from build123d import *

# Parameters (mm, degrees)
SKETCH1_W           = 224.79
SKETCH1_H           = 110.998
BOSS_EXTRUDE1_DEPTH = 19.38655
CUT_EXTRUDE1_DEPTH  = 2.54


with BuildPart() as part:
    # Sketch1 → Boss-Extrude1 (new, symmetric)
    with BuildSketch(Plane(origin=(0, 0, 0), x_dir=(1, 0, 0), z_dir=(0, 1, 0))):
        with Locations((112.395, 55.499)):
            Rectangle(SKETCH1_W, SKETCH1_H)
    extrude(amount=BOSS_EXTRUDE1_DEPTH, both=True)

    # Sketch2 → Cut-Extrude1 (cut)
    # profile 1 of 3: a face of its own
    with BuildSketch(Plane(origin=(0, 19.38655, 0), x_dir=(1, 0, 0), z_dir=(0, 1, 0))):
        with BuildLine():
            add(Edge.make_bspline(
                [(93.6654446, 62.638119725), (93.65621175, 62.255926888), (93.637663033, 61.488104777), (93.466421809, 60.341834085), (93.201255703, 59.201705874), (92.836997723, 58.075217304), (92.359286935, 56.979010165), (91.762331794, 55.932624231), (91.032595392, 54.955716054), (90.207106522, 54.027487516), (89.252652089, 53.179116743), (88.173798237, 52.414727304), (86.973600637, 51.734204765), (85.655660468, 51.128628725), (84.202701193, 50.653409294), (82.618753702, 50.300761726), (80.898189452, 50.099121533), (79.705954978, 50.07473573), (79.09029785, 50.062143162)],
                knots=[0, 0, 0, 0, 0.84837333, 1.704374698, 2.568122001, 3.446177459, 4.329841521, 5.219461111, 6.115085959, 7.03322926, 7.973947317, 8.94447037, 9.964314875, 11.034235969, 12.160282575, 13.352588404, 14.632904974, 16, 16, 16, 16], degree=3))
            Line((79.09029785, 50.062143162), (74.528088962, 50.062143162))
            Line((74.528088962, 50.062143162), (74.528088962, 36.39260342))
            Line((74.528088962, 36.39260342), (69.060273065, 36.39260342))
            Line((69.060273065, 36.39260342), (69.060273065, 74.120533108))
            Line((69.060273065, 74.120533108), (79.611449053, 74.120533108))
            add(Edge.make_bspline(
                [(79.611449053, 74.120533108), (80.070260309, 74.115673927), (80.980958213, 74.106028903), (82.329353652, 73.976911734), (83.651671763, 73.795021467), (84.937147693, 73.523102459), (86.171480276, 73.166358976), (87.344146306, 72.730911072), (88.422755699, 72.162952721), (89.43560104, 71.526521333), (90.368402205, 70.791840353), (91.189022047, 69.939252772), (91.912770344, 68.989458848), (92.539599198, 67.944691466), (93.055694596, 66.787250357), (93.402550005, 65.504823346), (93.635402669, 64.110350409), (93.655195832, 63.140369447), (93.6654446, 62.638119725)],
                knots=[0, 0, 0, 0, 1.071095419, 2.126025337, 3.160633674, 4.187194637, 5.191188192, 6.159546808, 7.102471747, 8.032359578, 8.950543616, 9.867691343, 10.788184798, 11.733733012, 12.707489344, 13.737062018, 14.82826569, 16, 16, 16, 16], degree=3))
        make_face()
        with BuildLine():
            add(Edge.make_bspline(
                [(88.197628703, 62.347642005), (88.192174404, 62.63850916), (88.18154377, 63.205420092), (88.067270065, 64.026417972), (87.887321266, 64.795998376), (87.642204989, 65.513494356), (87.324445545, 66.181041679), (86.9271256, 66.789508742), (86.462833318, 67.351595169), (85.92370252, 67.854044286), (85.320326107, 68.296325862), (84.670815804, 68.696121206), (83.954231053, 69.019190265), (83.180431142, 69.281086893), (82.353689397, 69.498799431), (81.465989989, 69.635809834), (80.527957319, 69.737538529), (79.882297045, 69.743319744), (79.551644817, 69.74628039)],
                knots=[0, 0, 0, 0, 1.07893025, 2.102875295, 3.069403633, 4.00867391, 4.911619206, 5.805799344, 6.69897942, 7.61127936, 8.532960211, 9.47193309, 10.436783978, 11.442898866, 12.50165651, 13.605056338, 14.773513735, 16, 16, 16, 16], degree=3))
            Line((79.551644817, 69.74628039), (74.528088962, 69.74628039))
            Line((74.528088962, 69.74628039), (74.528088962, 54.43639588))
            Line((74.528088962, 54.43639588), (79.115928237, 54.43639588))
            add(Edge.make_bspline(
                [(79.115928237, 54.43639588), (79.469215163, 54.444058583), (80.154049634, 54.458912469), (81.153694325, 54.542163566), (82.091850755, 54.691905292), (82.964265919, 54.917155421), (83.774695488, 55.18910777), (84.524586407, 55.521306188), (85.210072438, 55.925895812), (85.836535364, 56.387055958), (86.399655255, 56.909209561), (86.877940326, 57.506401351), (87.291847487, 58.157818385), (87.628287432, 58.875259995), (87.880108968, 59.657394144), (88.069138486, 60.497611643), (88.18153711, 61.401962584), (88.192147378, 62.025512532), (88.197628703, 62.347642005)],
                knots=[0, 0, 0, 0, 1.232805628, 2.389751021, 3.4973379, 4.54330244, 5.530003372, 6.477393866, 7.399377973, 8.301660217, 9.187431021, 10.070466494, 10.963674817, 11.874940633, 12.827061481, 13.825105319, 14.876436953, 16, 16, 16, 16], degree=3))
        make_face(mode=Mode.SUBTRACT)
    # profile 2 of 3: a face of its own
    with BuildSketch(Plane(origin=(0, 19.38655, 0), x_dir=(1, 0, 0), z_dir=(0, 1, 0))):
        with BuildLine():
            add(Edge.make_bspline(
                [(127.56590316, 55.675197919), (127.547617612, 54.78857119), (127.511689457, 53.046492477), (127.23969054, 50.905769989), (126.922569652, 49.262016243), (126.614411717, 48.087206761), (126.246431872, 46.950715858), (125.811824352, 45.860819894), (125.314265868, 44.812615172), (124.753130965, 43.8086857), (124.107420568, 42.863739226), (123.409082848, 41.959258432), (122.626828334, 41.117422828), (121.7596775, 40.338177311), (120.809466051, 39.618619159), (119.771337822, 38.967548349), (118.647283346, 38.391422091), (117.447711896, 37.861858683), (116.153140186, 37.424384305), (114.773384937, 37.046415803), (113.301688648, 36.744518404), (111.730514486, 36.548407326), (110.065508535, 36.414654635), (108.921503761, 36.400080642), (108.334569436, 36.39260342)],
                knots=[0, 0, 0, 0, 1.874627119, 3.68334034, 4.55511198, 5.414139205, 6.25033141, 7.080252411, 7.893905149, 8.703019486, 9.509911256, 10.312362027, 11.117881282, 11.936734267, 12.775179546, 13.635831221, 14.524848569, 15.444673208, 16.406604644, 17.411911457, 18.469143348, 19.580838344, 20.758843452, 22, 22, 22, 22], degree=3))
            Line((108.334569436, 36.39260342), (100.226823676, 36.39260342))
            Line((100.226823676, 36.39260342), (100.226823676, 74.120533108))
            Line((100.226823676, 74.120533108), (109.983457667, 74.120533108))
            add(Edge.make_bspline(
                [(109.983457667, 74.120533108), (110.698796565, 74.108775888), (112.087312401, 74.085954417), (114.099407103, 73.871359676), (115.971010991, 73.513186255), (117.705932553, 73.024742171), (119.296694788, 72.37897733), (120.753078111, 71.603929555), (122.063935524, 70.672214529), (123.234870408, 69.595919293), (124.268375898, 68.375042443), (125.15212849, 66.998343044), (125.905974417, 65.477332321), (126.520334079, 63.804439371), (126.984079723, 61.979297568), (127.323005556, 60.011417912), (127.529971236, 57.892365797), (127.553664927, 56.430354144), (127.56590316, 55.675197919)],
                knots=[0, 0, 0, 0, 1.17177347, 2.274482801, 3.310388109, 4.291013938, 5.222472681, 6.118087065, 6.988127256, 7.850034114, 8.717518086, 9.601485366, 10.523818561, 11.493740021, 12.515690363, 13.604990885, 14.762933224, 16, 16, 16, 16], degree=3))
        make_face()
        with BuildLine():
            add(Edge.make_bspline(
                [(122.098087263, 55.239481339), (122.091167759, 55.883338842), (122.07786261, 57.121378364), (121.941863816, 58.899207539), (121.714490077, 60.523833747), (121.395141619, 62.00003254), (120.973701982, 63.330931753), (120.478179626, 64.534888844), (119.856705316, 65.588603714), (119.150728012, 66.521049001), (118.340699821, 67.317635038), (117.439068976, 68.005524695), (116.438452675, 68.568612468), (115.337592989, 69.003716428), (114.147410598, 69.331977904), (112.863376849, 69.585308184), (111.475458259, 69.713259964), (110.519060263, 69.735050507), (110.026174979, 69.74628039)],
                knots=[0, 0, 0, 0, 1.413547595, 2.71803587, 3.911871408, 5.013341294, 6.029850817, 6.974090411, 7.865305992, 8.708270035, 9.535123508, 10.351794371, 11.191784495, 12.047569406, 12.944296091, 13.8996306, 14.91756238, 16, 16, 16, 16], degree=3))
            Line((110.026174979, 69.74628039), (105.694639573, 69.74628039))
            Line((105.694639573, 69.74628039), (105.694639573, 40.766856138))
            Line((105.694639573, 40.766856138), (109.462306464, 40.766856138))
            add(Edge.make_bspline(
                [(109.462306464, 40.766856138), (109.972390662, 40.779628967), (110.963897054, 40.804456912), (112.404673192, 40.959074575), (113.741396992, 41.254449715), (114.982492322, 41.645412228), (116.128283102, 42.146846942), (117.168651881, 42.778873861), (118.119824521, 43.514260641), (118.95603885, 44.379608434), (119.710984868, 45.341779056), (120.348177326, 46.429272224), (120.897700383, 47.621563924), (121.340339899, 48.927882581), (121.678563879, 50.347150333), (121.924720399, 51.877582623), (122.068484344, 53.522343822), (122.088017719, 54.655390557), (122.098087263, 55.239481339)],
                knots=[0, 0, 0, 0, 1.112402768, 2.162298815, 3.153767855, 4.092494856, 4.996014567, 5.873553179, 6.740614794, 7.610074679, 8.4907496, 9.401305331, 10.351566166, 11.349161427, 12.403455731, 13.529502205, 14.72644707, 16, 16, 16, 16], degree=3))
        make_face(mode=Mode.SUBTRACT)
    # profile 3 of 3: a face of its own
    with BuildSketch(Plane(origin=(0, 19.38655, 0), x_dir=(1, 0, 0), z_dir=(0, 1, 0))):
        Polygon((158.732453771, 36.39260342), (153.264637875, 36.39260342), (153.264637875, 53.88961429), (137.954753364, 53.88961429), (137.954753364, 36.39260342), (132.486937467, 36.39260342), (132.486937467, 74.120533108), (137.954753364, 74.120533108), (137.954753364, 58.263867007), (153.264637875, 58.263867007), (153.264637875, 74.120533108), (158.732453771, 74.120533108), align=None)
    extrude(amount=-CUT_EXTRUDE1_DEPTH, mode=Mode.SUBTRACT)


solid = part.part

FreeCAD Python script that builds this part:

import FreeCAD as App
import Part
import Sketcher

V = App.Vector
Q = App.Units.Quantity


def add_polygon(sketch, points):
    """Adds a closed chain of lines whose ends are joined by coincident constraints."""
    first, n = sketch.GeometryCount, len(points)
    for a, b in zip(points, points[1:] + points[:1]):
        sketch.addGeometry(Part.LineSegment(App.Vector(*a, 0), App.Vector(*b, 0)), False)
    for i in range(n):
        sketch.addConstraint(Sketcher.Constraint("Coincident", first + i, 2, first + (i + 1) % n, 1))

doc = App.newDocument("Part")
params = doc.addObject("Spreadsheet::Sheet", "Params")
for row, (alias, value) in enumerate([
    ("sketch1_width", "8.85 in"),
    ("sketch1_height", "4.37 in"),
    ("pad1_length", "1.5265 in"),
    ("pocket1_length", "0.1 in"),
], start=1):
    params.set(f"A{row}", alias)
    params.set(f"B{row}", "=" + value)
    params.setAlias(f"B{row}", alias)

body = doc.addObject("PartDesign::Body", "Body")

sketch1 = doc.addObject("Sketcher::SketchObject", "Sketch")
body.addObject(sketch1)
sketch1.AttachmentSupport = (doc.XZ_Plane, [""])
sketch1.MapMode = "FlatFace"
add_polygon(sketch1, [(0, -111), (0, 0), (225, 0), (225, -111)])
sketch1.addConstraint([
    Sketcher.Constraint("Vertical", 0),
    Sketcher.Constraint("Horizontal", 1),
    Sketcher.Constraint("Vertical", 2),
    Sketcher.Constraint("Horizontal", 3),
    Sketcher.Constraint("Coincident", 0, 2, -1, 1),
    Sketcher.Constraint("DistanceX", 1, 1, 1, 2, Q("8.85 in")),
    Sketcher.Constraint("DistanceY", 0, 1, 0, 2, Q("4.37 in")),
])
sketch1.setExpression("Constraints[9]", "Params.sketch1_width")
sketch1.setExpression("Constraints[10]", "Params.sketch1_height")
pad1 = doc.addObject("PartDesign::Pad", "Pad")
body.addObject(pad1)
pad1.Profile = sketch1
pad1.setExpression("Length", "Params.pad1_length")
pad1.Midplane = True

sketch2 = doc.addObject("Sketcher::SketchObject", "Sketch001")
body.addObject(sketch2)
sketch2.AttachmentSupport = (doc.XZ_Plane, [""])
sketch2.MapMode = "FlatFace"
sketch2.AttachmentOffset = App.Placement(V(0, 0, -19.38655), App.Rotation())
sketch2.addGeometry(Part.BSplineCurve([V(93.665445, -62.63812, 0), V(93.656212, -62.255927, 0), V(93.637663, -61.488105, 0), V(93.466422, -60.341834, 0), V(93.201256, -59.201706, 0), V(92.836998, -58.075217, 0), V(92.359287, -56.97901, 0), V(91.762332, -55.932624, 0), V(91.032595, -54.955716, 0), V(90.207107, -54.027488, 0), V(89.252652, -53.179117, 0), V(88.173798, -52.414727, 0), V(86.973601, -51.734205, 0), V(85.65566, -51.128629, 0), V(84.202701, -50.653409, 0), V(82.618754, -50.300762, 0), V(80.898189, -50.099122, 0), V(79.705955, -50.074736, 0), V(79.090298, -50.062143, 0)], [4, 1, 1, 1, 1, 1, 1, 1, 1, 1, 1, 1, 1, 1, 1, 1, 4], [0, 0.84837333, 1.704374698, 2.568122001, 3.446177459, 4.329841521, 5.219461111, 6.115085959, 7.03322926, 7.973947317, 8.94447037, 9.964314875, 11.034235969, 12.160282575, 13.352588404, 14.632904974, 16], False, 3, [1, 1, 1, 1, 1, 1, 1, 1, 1, 1, 1, 1, 1, 1, 1, 1, 1, 1, 1], False), False)
sketch2.addGeometry(Part.BSplineCurve([V(79.611449, -74.120533, 0), V(80.07026, -74.115674, 0), V(80.980958, -74.106029, 0), V(82.329354, -73.976912, 0), V(83.651672, -73.795021, 0), V(84.937148, -73.523102, 0), V(86.17148, -73.166359, 0), V(87.344146, -72.730911, 0), V(88.422756, -72.162953, 0), V(89.435601, -71.526521, 0), V(90.368402, -70.79184, 0), V(91.189022, -69.939253, 0), V(91.91277, -68.989459, 0), V(92.539599, -67.944691, 0), V(93.055695, -66.78725, 0), V(93.40255, -65.504823, 0), V(93.635403, -64.11035, 0), V(93.655196, -63.140369, 0), V(93.665445, -62.63812, 0)], [4, 1, 1, 1, 1, 1, 1, 1, 1, 1, 1, 1, 1, 1, 1, 1, 4], [0, 1.071095419, 2.126025337, 3.160633674, 4.187194637, 5.191188192, 6.159546808, 7.102471747, 8.032359578, 8.950543616, 9.867691343, 10.788184798, 11.733733012, 12.707489344, 13.737062018, 14.82826569, 16], False, 3, [1, 1, 1, 1, 1, 1, 1, 1, 1, 1, 1, 1, 1, 1, 1, 1, 1, 1, 1], False), False)
sketch2.addGeometry(Part.LineSegment(V(79.611449, -74.120533, 0), V(69.060273, -74.120533, 0)), False)
sketch2.addGeometry(Part.LineSegment(V(69.060273, -74.120533, 0), V(69.060273, -36.392603, 0)), False)
sketch2.addGeometry(Part.LineSegment(V(69.060273, -36.392603, 0), V(74.528089, -36.392603, 0)), False)
sketch2.addGeometry(Part.LineSegment(V(74.528089, -36.392603, 0), V(74.528089, -50.062143, 0)), False)
sketch2.addGeometry(Part.LineSegment(V(74.528089, -50.062143, 0), V(79.090298, -50.062143, 0)), False)
sketch2.addGeometry(Part.BSplineCurve([V(79.115928, -54.436396, 0), V(79.469215, -54.444059, 0), V(80.15405, -54.458912, 0), V(81.153694, -54.542164, 0), V(82.091851, -54.691905, 0), V(82.964266, -54.917155, 0), V(83.774695, -55.189108, 0), V(84.524586, -55.521306, 0), V(85.210072, -55.925896, 0), V(85.836535, -56.387056, 0), V(86.399655, -56.90921, 0), V(86.87794, -57.506401, 0), V(87.291847, -58.157818, 0), V(87.628287, -58.87526, 0), V(87.880109, -59.657394, 0), V(88.069138, -60.497612, 0), V(88.181537, -61.401963, 0), V(88.192147, -62.025513, 0), V(88.197629, -62.347642, 0)], [4, 1, 1, 1, 1, 1, 1, 1, 1, 1, 1, 1, 1, 1, 1, 1, 4], [0, 1.232805628, 2.389751021, 3.4973379, 4.54330244, 5.530003372, 6.477393866, 7.399377973, 8.301660217, 9.187431021, 10.070466494, 10.963674817, 11.874940633, 12.827061481, 13.825105319, 14.876436953, 16], False, 3, [1, 1, 1, 1, 1, 1, 1, 1, 1, 1, 1, 1, 1, 1, 1, 1, 1, 1, 1], False), False)
sketch2.addGeometry(Part.LineSegment(V(79.115928, -54.436396, 0), V(74.528089, -54.436396, 0)), False)
sketch2.addGeometry(Part.LineSegment(V(74.528089, -54.436396, 0), V(74.528089, -69.74628, 0)), False)
sketch2.addGeometry(Part.LineSegment(V(74.528089, -69.74628, 0), V(79.551645, -69.74628, 0)), False)
sketch2.addGeometry(Part.BSplineCurve([V(88.197629, -62.347642, 0), V(88.192174, -62.638509, 0), V(88.181544, -63.20542, 0), V(88.06727, -64.026418, 0), V(87.887321, -64.795998, 0), V(87.642205, -65.513494, 0), V(87.324446, -66.181042, 0), V(86.927126, -66.789509, 0), V(86.462833, -67.351595, 0), V(85.923703, -67.854044, 0), V(85.320326, -68.296326, 0), V(84.670816, -68.696121, 0), V(83.954231, -69.01919, 0), V(83.180431, -69.281087, 0), V(82.353689, -69.498799, 0), V(81.46599, -69.63581, 0), V(80.527957, -69.737539, 0), V(79.882297, -69.74332, 0), V(79.551645, -69.74628, 0)], [4, 1, 1, 1, 1, 1, 1, 1, 1, 1, 1, 1, 1, 1, 1, 1, 4], [0, 1.07893025, 2.102875295, 3.069403633, 4.00867391, 4.911619206, 5.805799344, 6.69897942, 7.61127936, 8.532960211, 9.47193309, 10.436783978, 11.442898866, 12.50165651, 13.605056338, 14.773513735, 16], False, 3, [1, 1, 1, 1, 1, 1, 1, 1, 1, 1, 1, 1, 1, 1, 1, 1, 1, 1, 1], False), False)
sketch2.addGeometry(Part.BSplineCurve([V(127.565903, -55.675198, 0), V(127.547618, -54.788571, 0), V(127.511689, -53.046492, 0), V(127.239691, -50.90577, 0), V(126.92257, -49.262016, 0), V(126.614412, -48.087207, 0), V(126.246432, -46.950716, 0), V(125.811824, -45.86082, 0), V(125.314266, -44.812615, 0), V(124.753131, -43.808686, 0), V(124.107421, -42.863739, 0), V(123.409083, -41.959258, 0), V(122.626828, -41.117423, 0), V(121.759677, -40.338177, 0), V(120.809466, -39.618619, 0), V(119.771338, -38.967548, 0), V(118.647283, -38.391422, 0), V(117.447712, -37.861859, 0), V(116.15314, -37.424384, 0), V(114.773385, -37.046416, 0), V(113.301689, -36.744518, 0), V(111.730514, -36.548407, 0), V(110.065509, -36.414655, 0), V(108.921504, -36.400081, 0), V(108.334569, -36.392603, 0)], [4, 1, 1, 1, 1, 1, 1, 1, 1, 1, 1, 1, 1, 1, 1, 1, 1, 1, 1, 1, 1, 1, 4], [0, 1.874627119, 3.68334034, 4.55511198, 5.414139205, 6.25033141, 7.080252411, 7.893905149, 8.703019486, 9.509911256, 10.312362027, 11.117881282, 11.936734267, 12.775179546, 13.635831221, 14.524848569, 15.444673208, 16.406604644, 17.411911457, 18.469143348, 19.580838344, 20.758843452, 22], False, 3, [1, 1, 1, 1, 1, 1, 1, 1, 1, 1, 1, 1, 1, 1, 1, 1, 1, 1, 1, 1, 1, 1, 1, 1, 1], False), False)
sketch2.addGeometry(Part.BSplineCurve([V(109.983458, -74.120533, 0), V(110.698797, -74.108776, 0), V(112.087312, -74.085954, 0), V(114.099407, -73.87136, 0), V(115.971011, -73.513186, 0), V(117.705933, -73.024742, 0), V(119.296695, -72.378977, 0), V(120.753078, -71.60393, 0), V(122.063936, -70.672215, 0), V(123.23487, -69.595919, 0), V(124.268376, -68.375042, 0), V(125.152128, -66.998343, 0), V(125.905974, -65.477332, 0), V(126.520334, -63.804439, 0), V(126.98408, -61.979298, 0), V(127.323006, -60.011418, 0), V(127.529971, -57.892366, 0), V(127.553665, -56.430354, 0), V(127.565903, -55.675198, 0)], [4, 1, 1, 1, 1, 1, 1, 1, 1, 1, 1, 1, 1, 1, 1, 1, 4], [0, 1.17177347, 2.274482801, 3.310388109, 4.291013938, 5.222472681, 6.118087065, 6.988127256, 7.850034114, 8.717518086, 9.601485366, 10.523818561, 11.493740021, 12.515690363, 13.604990885, 14.762933224, 16], False, 3, [1, 1, 1, 1, 1, 1, 1, 1, 1, 1, 1, 1, 1, 1, 1, 1, 1, 1, 1], False), False)
sketch2.addGeometry(Part.LineSegment(V(109.983458, -74.120533, 0), V(100.226824, -74.120533, 0)), False)
sketch2.addGeometry(Part.LineSegment(V(100.226824, -74.120533, 0), V(100.226824, -36.392603, 0)), False)
sketch2.addGeometry(Part.LineSegment(V(100.226824, -36.392603, 0), V(108.334569, -36.392603, 0)), False)
sketch2.addGeometry(Part.BSplineCurve([V(109.462306, -40.766856, 0), V(109.972391, -40.779629, 0), V(110.963897, -40.804457, 0), V(112.404673, -40.959075, 0), V(113.741397, -41.25445, 0), V(114.982492, -41.645412, 0), V(116.128283, -42.146847, 0), V(117.168652, -42.778874, 0), V(118.119825, -43.514261, 0), V(118.956039, -44.379608, 0), V(119.710985, -45.341779, 0), V(120.348177, -46.429272, 0), V(120.8977, -47.621564, 0), V(121.34034, -48.927883, 0), V(121.678564, -50.34715, 0), V(121.92472, -51.877583, 0), V(122.068484, -53.522344, 0), V(122.088018, -54.655391, 0), V(122.098087, -55.239481, 0)], [4, 1, 1, 1, 1, 1, 1, 1, 1, 1, 1, 1, 1, 1, 1, 1, 4], [0, 1.112402768, 2.162298815, 3.153767855, 4.092494856, 4.996014567, 5.873553179, 6.740614794, 7.610074679, 8.4907496, 9.401305331, 10.351566166, 11.349161427, 12.403455731, 13.529502205, 14.72644707, 16], False, 3, [1, 1, 1, 1, 1, 1, 1, 1, 1, 1, 1, 1, 1, 1, 1, 1, 1, 1, 1], False), False)
sketch2.addGeometry(Part.LineSegment(V(109.462306, -40.766856, 0), V(105.69464, -40.766856, 0)), False)
sketch2.addGeometry(Part.LineSegment(V(105.69464, -40.766856, 0), V(105.69464, -69.74628, 0)), False)
sketch2.addGeometry(Part.LineSegment(V(105.69464, -69.74628, 0), V(110.026175, -69.74628, 0)), False)
sketch2.addGeometry(Part.BSplineCurve([V(122.098087, -55.239481, 0), V(122.091168, -55.883339, 0), V(122.077863, -57.121378, 0), V(121.941864, -58.899208, 0), V(121.71449, -60.523834, 0), V(121.395142, -62.000033, 0), V(120.973702, -63.330932, 0), V(120.47818, -64.534889, 0), V(119.856705, -65.588604, 0), V(119.150728, -66.521049, 0), V(118.3407, -67.317635, 0), V(117.439069, -68.005525, 0), V(116.438453, -68.568612, 0), V(115.337593, -69.003716, 0), V(114.147411, -69.331978, 0), V(112.863377, -69.585308, 0), V(111.475458, -69.71326, 0), V(110.51906, -69.735051, 0), V(110.026175, -69.74628, 0)], [4, 1, 1, 1, 1, 1, 1, 1, 1, 1, 1, 1, 1, 1, 1, 1, 4], [0, 1.413547595, 2.71803587, 3.911871408, 5.013341294, 6.029850817, 6.974090411, 7.865305992, 8.708270035, 9.535123508, 10.351794371, 11.191784495, 12.047569406, 12.944296091, 13.8996306, 14.91756238, 16], False, 3, [1, 1, 1, 1, 1, 1, 1, 1, 1, 1, 1, 1, 1, 1, 1, 1, 1, 1, 1], False), False)
add_polygon(sketch2, [(153.264638, -36.392603), (158.732454, -36.392603), (158.732454, -74.120533), (153.264638, -74.120533), (153.264638, -58.263867), (137.954753, -58.263867), (137.954753, -74.120533), (132.486937, -74.120533), (132.486937, -36.392603), (137.954753, -36.392603), (137.954753, -53.889614), (153.264638, -53.889614)])
sketch2.addConstraint([
    Sketcher.Constraint("Block", 0),
    Sketcher.Constraint("Block", 1),
    Sketcher.Constraint("Block", 7),
    Sketcher.Constraint("Block", 11),
    Sketcher.Constraint("Block", 12),
    Sketcher.Constraint("Block", 13),
    Sketcher.Constraint("Block", 17),
    Sketcher.Constraint("Block", 21),
    Sketcher.Constraint("Coincident", 1, 1, 2, 1),
    Sketcher.Constraint("Coincident", 2, 2, 3, 1),
    Sketcher.Constraint("Coincident", 3, 2, 4, 1),
    Sketcher.Constraint("Coincident", 4, 2, 5, 1),
    Sketcher.Constraint("Coincident", 5, 2, 6, 1),
    Sketcher.Constraint("Coincident", 6, 2, 0, 2),
    Sketcher.Constraint("Coincident", 7, 1, 8, 1),
    Sketcher.Constraint("Coincident", 8, 2, 9, 1),
    Sketcher.Constraint("Coincident", 9, 2, 10, 1),
    Sketcher.Constraint("Coincident", 10, 2, 11, 2),
    Sketcher.Constraint("Coincident", 13, 1, 14, 1),
    Sketcher.Constraint("Coincident", 14, 2, 15, 1),
    Sketcher.Constraint("Coincident", 15, 2, 16, 1),
    Sketcher.Constraint("Coincident", 16, 2, 12, 2),
    Sketcher.Constraint("Coincident", 17, 1, 18, 1),
    Sketcher.Constraint("Coincident", 18, 2, 19, 1),
    Sketcher.Constraint("Coincident", 19, 2, 20, 1),
    Sketcher.Constraint("Coincident", 20, 2, 21, 2),
    Sketcher.Constraint("Horizontal", 2),
    Sketcher.Constraint("Vertical", 3),
    Sketcher.Constraint("Horizontal", 4),
    Sketcher.Constraint("Vertical", 5),
    Sketcher.Constraint("Horizontal", 6),
    Sketcher.Constraint("Horizontal", 8),
    Sketcher.Constraint("Vertical", 9),
    Sketcher.Constraint("Horizontal", 10),
    Sketcher.Constraint("Horizontal", 14),
    Sketcher.Constraint("Vertical", 15),
    Sketcher.Constraint("Horizontal", 16),
    Sketcher.Constraint("Horizontal", 18),
    Sketcher.Constraint("Vertical", 19),
    Sketcher.Constraint("Horizontal", 20),
    Sketcher.Constraint("Horizontal", 22),
    Sketcher.Constraint("Vertical", 23),
    Sketcher.Constraint("Horizontal", 24),
    Sketcher.Constraint("Vertical", 25),
    Sketcher.Constraint("Horizontal", 26),
    Sketcher.Constraint("Vertical", 27),
    Sketcher.Constraint("Horizontal", 28),
    Sketcher.Constraint("Vertical", 29),
    Sketcher.Constraint("Horizontal", 30),
    Sketcher.Constraint("Vertical", 31),
    Sketcher.Constraint("Horizontal", 32),
    Sketcher.Constraint("Vertical", 33),
    Sketcher.Constraint("DistanceX", 6, 1, 6, 2, 4.562209),
    Sketcher.Constraint("DistanceX", 8, 2, 8, 1, 4.587839),
    Sketcher.Constraint("DistanceY", 3, 1, 3, 2, 37.72793),
    Sketcher.Constraint("DistanceY", 23, 2, 23, 1, 37.72793),
    Sketcher.Constraint("DistanceY", 29, 1, 29, 2, 37.72793),
    Sketcher.Constraint("DistanceY", 31, 2, 31, 1, 17.497011),
    Sketcher.Constraint("DistanceY", 33, 1, 33, 2, 17.497011),
    Sketcher.Constraint("DistanceX", 19, 2, 24, 2, 47.569998),
    Sketcher.Constraint("DistanceX", 26, 2, 23, 2, 20.7777),
    Sketcher.Constraint("DistanceX", 28, 2, 24, 2, 20.7777),
    Sketcher.Constraint("DistanceX", 30, 2, 22, 2, 20.7777),
    Sketcher.Constraint("DistanceX", 29, 2, 33, 2, 20.7777),
    Sketcher.Constraint("DistanceX", 2, 2, 2, 1, 10.551176),
    Sketcher.Constraint("DistanceX", 14, 2, 14, 1, 9.756634),
    Sketcher.Constraint("DistanceX", 18, 2, 18, 1, 3.767667),
    Sketcher.Constraint("DistanceX", 22, 1, 22, 2, 5.467816),
    Sketcher.Constraint("DistanceY", 25, 1, 25, 2, 15.856666),
    Sketcher.Constraint("DistanceY", 22, 2, -1, 1, 36.392603),
])
pocket1 = doc.addObject("PartDesign::Pocket", "Pocket")
body.addObject(pocket1)
pocket1.Profile = sketch2
pocket1.setExpression("Length", "Params.pocket1_length")
pocket1.Reversed = True

doc.recompute()
